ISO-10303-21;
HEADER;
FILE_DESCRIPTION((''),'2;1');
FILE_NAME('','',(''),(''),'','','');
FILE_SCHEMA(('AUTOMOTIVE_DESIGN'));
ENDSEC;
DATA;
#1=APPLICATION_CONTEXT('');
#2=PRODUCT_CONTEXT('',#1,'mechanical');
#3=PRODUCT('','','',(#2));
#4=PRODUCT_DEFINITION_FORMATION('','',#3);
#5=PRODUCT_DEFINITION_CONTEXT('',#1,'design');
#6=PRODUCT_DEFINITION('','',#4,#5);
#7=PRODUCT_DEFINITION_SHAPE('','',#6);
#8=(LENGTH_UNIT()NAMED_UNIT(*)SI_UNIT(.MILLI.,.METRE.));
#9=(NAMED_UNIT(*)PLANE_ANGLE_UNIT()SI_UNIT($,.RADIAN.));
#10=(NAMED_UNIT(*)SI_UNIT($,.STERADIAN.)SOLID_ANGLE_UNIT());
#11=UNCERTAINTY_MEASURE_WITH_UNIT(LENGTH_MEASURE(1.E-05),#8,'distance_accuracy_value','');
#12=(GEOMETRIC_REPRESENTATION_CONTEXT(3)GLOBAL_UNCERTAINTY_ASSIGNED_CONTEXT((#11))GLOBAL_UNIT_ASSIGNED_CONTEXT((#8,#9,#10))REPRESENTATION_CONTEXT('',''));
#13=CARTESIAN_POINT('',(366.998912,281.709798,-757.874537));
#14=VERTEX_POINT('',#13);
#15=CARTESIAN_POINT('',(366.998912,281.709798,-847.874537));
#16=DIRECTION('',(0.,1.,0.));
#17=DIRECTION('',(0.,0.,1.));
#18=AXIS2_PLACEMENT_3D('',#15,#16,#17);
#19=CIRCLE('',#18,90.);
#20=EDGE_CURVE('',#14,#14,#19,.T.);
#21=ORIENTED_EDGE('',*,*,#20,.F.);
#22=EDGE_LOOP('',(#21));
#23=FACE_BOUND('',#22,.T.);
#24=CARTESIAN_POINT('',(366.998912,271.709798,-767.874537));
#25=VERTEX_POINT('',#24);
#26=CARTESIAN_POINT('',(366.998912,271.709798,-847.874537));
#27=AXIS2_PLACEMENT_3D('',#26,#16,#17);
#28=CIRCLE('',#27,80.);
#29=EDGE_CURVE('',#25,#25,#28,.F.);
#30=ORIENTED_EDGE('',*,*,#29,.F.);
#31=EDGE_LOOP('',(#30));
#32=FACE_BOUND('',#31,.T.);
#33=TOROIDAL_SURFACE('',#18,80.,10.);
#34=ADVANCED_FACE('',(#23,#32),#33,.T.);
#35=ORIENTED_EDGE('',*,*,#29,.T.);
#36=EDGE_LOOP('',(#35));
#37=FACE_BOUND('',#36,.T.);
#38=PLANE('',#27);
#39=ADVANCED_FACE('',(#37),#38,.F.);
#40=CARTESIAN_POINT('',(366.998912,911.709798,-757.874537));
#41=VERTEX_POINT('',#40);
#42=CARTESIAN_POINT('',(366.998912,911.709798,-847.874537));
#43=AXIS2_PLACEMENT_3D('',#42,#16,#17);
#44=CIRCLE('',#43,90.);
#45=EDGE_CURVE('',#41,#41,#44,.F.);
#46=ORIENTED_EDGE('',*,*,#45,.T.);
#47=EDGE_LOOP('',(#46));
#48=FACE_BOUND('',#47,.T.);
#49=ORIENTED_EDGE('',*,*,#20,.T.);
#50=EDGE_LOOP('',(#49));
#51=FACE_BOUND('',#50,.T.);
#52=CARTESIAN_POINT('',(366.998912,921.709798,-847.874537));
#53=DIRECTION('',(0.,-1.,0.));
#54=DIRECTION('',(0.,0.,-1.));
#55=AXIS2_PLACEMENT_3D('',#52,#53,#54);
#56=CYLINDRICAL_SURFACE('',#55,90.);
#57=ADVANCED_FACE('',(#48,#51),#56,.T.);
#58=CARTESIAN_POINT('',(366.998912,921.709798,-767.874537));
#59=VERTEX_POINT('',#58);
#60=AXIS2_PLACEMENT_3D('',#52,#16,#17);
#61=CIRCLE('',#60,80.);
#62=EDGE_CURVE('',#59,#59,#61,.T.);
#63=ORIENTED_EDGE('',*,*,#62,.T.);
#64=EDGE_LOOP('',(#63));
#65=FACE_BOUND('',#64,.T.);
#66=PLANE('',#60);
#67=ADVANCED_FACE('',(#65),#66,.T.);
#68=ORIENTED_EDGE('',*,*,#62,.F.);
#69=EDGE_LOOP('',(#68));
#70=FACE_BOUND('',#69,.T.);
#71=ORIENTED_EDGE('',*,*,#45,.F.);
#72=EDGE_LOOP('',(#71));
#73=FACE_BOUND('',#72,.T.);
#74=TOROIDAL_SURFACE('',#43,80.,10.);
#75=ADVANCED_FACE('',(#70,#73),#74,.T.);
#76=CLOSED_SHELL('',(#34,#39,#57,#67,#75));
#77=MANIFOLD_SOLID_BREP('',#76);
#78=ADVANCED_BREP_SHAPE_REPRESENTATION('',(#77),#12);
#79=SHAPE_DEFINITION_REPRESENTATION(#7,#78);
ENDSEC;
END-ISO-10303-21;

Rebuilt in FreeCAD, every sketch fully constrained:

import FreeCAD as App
import Part
import Sketcher
from FreeCAD import Vector


def edges_at(feature, points):
    """Names of the edges that pass closest to the given points."""
    edges = feature.Shape.Edges
    near = lambda p: min(range(len(edges)), key=lambda i: edges[i].distToShape(Part.Vertex(*p))[0])
    return sorted({f"Edge{near(p) + 1}" for p in points})

doc = App.newDocument("Part")
body = doc.addObject("PartDesign::Body", "Body")

# Sketch on XZ plane
sketch1 = body.newObject("Sketcher::SketchObject", "Sketch")
sketch1.AttachmentSupport = (doc.getObject("XZ_Plane"), [""])
sketch1.MapMode = "FlatFace"
sketch1.AttachmentOffset = App.Placement(Vector(0, 0, -871.709798), App.Rotation())
sketch1.addGeometry(Part.Circle(Vector(367, -848, 0), Vector(0, 0, 1), 90), False)
sketch1.addConstraint([
    Sketcher.Constraint("Diameter", 0, 180.0),
    Sketcher.Constraint("DistanceX", -1, 1, 0, 3, 366.998912),
    Sketcher.Constraint("DistanceY", 0, 3, -1, 1, 847.874537),
])
pad1 = body.newObject("PartDesign::Pad", "Pad")
pad1.Profile = sketch1
pad1.Type = "TwoLengths"
pad1.Length = 50
pad1.Length2 = 600
pad1.Reversed = True
doc.recompute()

fillet = body.newObject("PartDesign::Fillet", "Fillet")
fillet.Base = (pad1, edges_at(pad1, [(366.999, 271.71, -937.875), (366.999, 921.71, -937.875)]))
fillet.Radius = 10

doc.recompute()
